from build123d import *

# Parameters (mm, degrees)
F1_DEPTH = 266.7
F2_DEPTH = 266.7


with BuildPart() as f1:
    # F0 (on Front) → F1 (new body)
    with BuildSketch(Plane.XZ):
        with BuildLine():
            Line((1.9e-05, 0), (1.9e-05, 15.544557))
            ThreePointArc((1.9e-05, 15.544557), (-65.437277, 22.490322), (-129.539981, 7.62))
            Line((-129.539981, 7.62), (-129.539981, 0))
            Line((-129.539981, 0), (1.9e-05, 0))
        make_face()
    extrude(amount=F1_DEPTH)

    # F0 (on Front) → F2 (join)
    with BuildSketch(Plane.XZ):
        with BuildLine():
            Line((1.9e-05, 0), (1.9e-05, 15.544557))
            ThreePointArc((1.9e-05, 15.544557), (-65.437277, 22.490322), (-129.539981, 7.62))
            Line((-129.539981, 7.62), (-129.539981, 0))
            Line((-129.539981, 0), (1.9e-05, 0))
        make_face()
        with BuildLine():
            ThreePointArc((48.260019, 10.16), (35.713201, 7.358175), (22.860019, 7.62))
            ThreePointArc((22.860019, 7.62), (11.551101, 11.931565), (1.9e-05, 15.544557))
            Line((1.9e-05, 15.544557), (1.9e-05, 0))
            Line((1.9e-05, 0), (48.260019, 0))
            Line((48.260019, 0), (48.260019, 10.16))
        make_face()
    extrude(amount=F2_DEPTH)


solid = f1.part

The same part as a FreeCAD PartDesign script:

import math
import FreeCAD as App
import Part
import Sketcher
from FreeCAD import Vector
Q = App.Units.Quantity

doc = App.newDocument("Part")
params = doc.addObject("Spreadsheet::Sheet", "Params")
for row, (alias, value) in enumerate([
    ("sketch1_radius", "7.8000001 in"),
    ("sketch1_width", "5.1 in"),
    ("sketch1_height", "0.3 in"),
    ("sketch1_width2", "3 in"),
    ("pad1_length", "10.5 in"),
    ("sketch2_radius", "7.8000001 in"),
    ("sketch2_width", "7 in"),
    ("sketch2_height", "0.3 in"),
    ("sketch2_height2", "0.4 in"),
    ("sketch2_width2", "3 in"),
    ("pad2_length", "10.5 in"),
], start=1):
    params.set(f"A{row}", alias)
    params.set(f"B{row}", "=" + value)
    params.setAlias(f"B{row}", alias)

body = doc.addObject("PartDesign::Body", "Body")

# Sketch on XZ plane
sketch1 = doc.addObject("Sketcher::SketchObject", "Sketch")
body.addObject(sketch1)
sketch1.AttachmentSupport = (doc.XZ_Plane, [""])
sketch1.MapMode = "FlatFace"
sketch1.addGeometry(Part.LineSegment(Vector(0.000019, 0, 0), Vector(0.000019, 15.544557, 0)), False)
sketch1.addGeometry(Part.ArcOfCircle(Part.Circle(Vector(-53.33998, -175.260003, 0), Vector(0, 0, 1), 198.120003), math.radians(74.381502), math.radians(112.619865)), False)
sketch1.addGeometry(Part.LineSegment(Vector(-129.539981, 7.62, 0), Vector(-129.539981, 0, 0)), False)
sketch1.addGeometry(Part.LineSegment(Vector(-129.539981, 0, 0), Vector(0.000019, 0, 0)), False)
sketch1.addConstraint(Sketcher.Constraint("Coincident", 0, 2, 1, 1))
sketch1.addConstraint(Sketcher.Constraint("Coincident", 1, 2, 2, 1))
sketch1.addConstraint(Sketcher.Constraint("Coincident", 2, 2, 3, 1))
sketch1.addConstraint(Sketcher.Constraint("Coincident", 3, 2, 0, 1))
sketch1.addConstraint(Sketcher.Constraint("Vertical", 0))
sketch1.addConstraint(Sketcher.Constraint("Vertical", 2))
sketch1.addConstraint(Sketcher.Constraint("Horizontal", 3))
sketch1.addConstraint(Sketcher.Constraint("PointOnObject", 2, 2, -1))
sketch1.addConstraint(Sketcher.Constraint("Radius", 1, Q("7.8000001 in")))
sketch1.addConstraint(Sketcher.Constraint("DistanceX", 3, 1, 3, 2, Q("5.1 in")))
sketch1.addConstraint(Sketcher.Constraint("DistanceY", 2, 2, 2, 1, Q("0.3 in")))
sketch1.addConstraint(Sketcher.Constraint("DistanceX", 1, 2, 1, 3, Q("3 in")))
sketch1.addConstraint(Sketcher.Constraint("DistanceX", 1, 3, -1, 1, 53.33998))
sketch1.setExpression("Constraints[8]", "Params.sketch1_radius")
sketch1.setExpression("Constraints[9]", "Params.sketch1_width")
sketch1.setExpression("Constraints[10]", "Params.sketch1_height")
sketch1.setExpression("Constraints[11]", "Params.sketch1_width2")
pad1 = doc.addObject("PartDesign::Pad", "Pad")
body.addObject(pad1)
pad1.Profile = sketch1
pad1.setExpression("Length", "Params.pad1_length")

# Sketch on XZ plane
sketch2 = doc.addObject("Sketcher::SketchObject", "Sketch001")
body.addObject(sketch2)
sketch2.AttachmentSupport = (doc.XZ_Plane, [""])
sketch2.MapMode = "FlatFace"
sketch2.addGeometry(Part.ArcOfCircle(Part.Circle(Vector(-53.33998, -175.260003, 0), Vector(0, 0, 1), 198.120003), math.radians(74.381502), math.radians(112.619865)), False)
sketch2.addGeometry(Part.LineSegment(Vector(-129.539981, 7.62, 0), Vector(-129.539981, 0, 0)), False)
sketch2.addGeometry(Part.LineSegment(Vector(-129.539981, 0, 0), Vector(48.260019, 0, 0)), False)
sketch2.addGeometry(Part.LineSegment(Vector(48.260019, 0, 0), Vector(48.260019, 10.16, 0)), False)
sketch2.addGeometry(Part.ArcOfCircle(Part.Circle(Vector(30.371975, 60.770442, 0), Vector(0, 0, 1), 53.678664), math.radians(-98.044551), math.radians(-70.534263)), False)
sketch2.addGeometry(Part.ArcOfCircle(Part.Circle(Vector(-53.339965, -175.259942, 0), Vector(0, 0, 1), 198.11994), math.radians(67.380133), math.radians(74.381502)), False)
sketch2.addConstraint(Sketcher.Constraint("Coincident", 0, 2, 1, 1))
sketch2.addConstraint(Sketcher.Constraint("Coincident", 1, 2, 2, 1))
sketch2.addConstraint(Sketcher.Constraint("Coincident", 2, 2, 3, 1))
sketch2.addConstraint(Sketcher.Constraint("Coincident", 3, 2, 4, 2))
sketch2.addConstraint(Sketcher.Constraint("Coincident", 4, 1, 5, 1))
sketch2.addConstraint(Sketcher.Constraint("Tangent", 5, 2, 0, 1))
sketch2.addConstraint(Sketcher.Constraint("Vertical", 1))
sketch2.addConstraint(Sketcher.Constraint("Horizontal", 2))
sketch2.addConstraint(Sketcher.Constraint("Vertical", 3))
sketch2.addConstraint(Sketcher.Constraint("PointOnObject", 1, 2, -1))
sketch2.addConstraint(Sketcher.Constraint("Horizontal", 0, 2, 4, 1))
sketch2.addConstraint(Sketcher.Constraint("Radius", 0, Q("7.8000001 in")))
sketch2.addConstraint(Sketcher.Constraint("DistanceX", 2, 1, 2, 2, Q("7 in")))
sketch2.addConstraint(Sketcher.Constraint("DistanceY", 1, 2, 1, 1, Q("0.3 in")))
sketch2.addConstraint(Sketcher.Constraint("DistanceY", 3, 1, 3, 2, Q("0.4 in")))
sketch2.addConstraint(Sketcher.Constraint("DistanceX", 0, 2, 0, 3, Q("3 in")))
sketch2.addConstraint(Sketcher.Constraint("DistanceX", 5, 2, 4, 1, Q("0.9 in")))
sketch2.addConstraint(Sketcher.Constraint("Radius", 5, 198.11994))
sketch2.addConstraint(Sketcher.Constraint("Radius", 4, 53.678664))
sketch2.addConstraint(Sketcher.Constraint("DistanceX", 0, 3, -1, 1, 53.33998))
sketch2.setExpression("Constraints[11]", "Params.sketch2_radius")
sketch2.setExpression("Constraints[12]", "Params.sketch2_width")
sketch2.setExpression("Constraints[13]", "Params.sketch2_height")
sketch2.setExpression("Constraints[14]", "Params.sketch2_height2")
sketch2.setExpression("Constraints[15]", "Params.sketch2_width2")
pad2 = doc.addObject("PartDesign::Pad", "Pad001")
body.addObject(pad2)
pad2.Profile = sketch2
pad2.setExpression("Length", "Params.pad2_length")

doc.recompute()
